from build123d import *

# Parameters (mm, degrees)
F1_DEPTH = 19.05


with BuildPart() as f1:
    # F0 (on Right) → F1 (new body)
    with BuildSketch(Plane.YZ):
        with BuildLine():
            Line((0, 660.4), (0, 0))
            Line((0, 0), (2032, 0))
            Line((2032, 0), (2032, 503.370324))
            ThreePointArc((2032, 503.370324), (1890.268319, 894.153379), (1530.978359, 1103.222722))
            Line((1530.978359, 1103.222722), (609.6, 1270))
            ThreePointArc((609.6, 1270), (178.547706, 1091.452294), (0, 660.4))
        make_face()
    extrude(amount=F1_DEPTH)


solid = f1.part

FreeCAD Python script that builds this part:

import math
import FreeCAD as App
import Part
import Sketcher

V = App.Vector
Q = App.Units.Quantity

doc = App.newDocument("Part")
body = doc.addObject("PartDesign::Body", "Body")

# Sketch on YZ plane
sketch1 = body.newObject("Sketcher::SketchObject", "Sketch")
sketch1.AttachmentSupport = (doc.getObject("YZ_Plane"), [""])
sketch1.MapMode = "FlatFace"
sketch1.addGeometry(Part.LineSegment(V(0, 660, 0), V(0, 0, 0)), False)
sketch1.addGeometry(Part.LineSegment(V(0, 0, 0), V(2032, 0, 0)), False)
sketch1.addGeometry(Part.LineSegment(V(2032, 0, 0), V(2032, 503, 0)), False)
sketch1.addGeometry(Part.ArcOfCircle(Part.Circle(V(1422, 503, 0), V(0, 0, 1), 610), math.radians(0), math.radians(80)), False)
sketch1.addGeometry(Part.LineSegment(V(1531, 1103, 0), V(610, 1270, 0)), False)
sketch1.addGeometry(Part.ArcOfCircle(Part.Circle(V(610, 660, 0), V(0, 0, 1), 610), math.radians(90), math.radians(180)), False)
sketch1.addConstraint(Sketcher.Constraint("Coincident", 0, 2, 1, 1))
sketch1.addConstraint(Sketcher.Constraint("Coincident", 1, 2, 2, 1))
sketch1.addConstraint(Sketcher.Constraint("Tangent", 2, 2, 3, 1))
sketch1.addConstraint(Sketcher.Constraint("Tangent", 3, 2, 4, 1))
sketch1.addConstraint(Sketcher.Constraint("Coincident", 4, 2, 5, 1))
sketch1.addConstraint(Sketcher.Constraint("Tangent", 5, 2, 0, 1))
sketch1.addConstraint(Sketcher.Constraint("Vertical", 0))
sketch1.addConstraint(Sketcher.Constraint("Horizontal", 1))
sketch1.addConstraint(Sketcher.Constraint("Vertical", 2))
sketch1.addConstraint(Sketcher.Constraint("Coincident", 0, 2, -1, 1))
sketch1.addConstraint(Sketcher.Constraint("Equal", 3, 5))
sketch1.addConstraint(Sketcher.Constraint("Vertical", 5, 3, 4, 2))
sketch1.addConstraint(Sketcher.Constraint("Radius", 3, Q("24 in")))
sketch1.addConstraint(Sketcher.Constraint("DistanceX", 1, 1, 1, 2, Q("80 in")))
sketch1.addConstraint(Sketcher.Constraint("DistanceY", 0, 2, 0, 1, Q("26 in")))
sketch1.addConstraint(Sketcher.Constraint("DistanceY", 2, 1, 2, 2, 503.370324))
pad1 = body.newObject("PartDesign::Pad", "Pad")
pad1.Profile = sketch1
pad1.Length = Q("0.75 in")

doc.recompute()
